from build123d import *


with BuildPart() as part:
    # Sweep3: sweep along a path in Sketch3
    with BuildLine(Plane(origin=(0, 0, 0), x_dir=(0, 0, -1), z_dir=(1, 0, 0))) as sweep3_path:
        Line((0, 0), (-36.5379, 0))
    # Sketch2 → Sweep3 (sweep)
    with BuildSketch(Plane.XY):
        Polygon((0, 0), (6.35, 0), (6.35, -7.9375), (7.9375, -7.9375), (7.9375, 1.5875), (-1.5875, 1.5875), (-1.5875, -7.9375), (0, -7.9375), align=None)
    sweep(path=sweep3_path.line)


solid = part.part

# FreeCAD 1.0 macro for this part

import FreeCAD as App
import Part
import Sketcher
from FreeCAD import Vector
Q = App.Units.Quantity

doc = App.newDocument("Part")
body = doc.addObject("PartDesign::Body", "Body")

# Sketch on XY plane
sketch1 = body.newObject("Sketcher::SketchObject", "Sketch")
sketch1.AttachmentSupport = (doc.getObject("XY_Plane"), [""])
sketch1.MapMode = "FlatFace"
sketch1.addGeometry(Part.LineSegment(Vector(0, 0, 0), Vector(6.3, 0, 0)), False)
sketch1.addGeometry(Part.LineSegment(Vector(6.3, 0, 0), Vector(6.3, -7.9, 0)), False)
sketch1.addGeometry(Part.LineSegment(Vector(6.3, -7.9, 0), Vector(7.9, -7.9, 0)), False)
sketch1.addGeometry(Part.LineSegment(Vector(7.9, -7.9, 0), Vector(7.9, 1.6, 0)), False)
sketch1.addGeometry(Part.LineSegment(Vector(7.9, 1.6, 0), Vector(-1.6, 1.6, 0)), False)
sketch1.addGeometry(Part.LineSegment(Vector(-1.6, 1.6, 0), Vector(-1.6, -7.9, 0)), False)
sketch1.addGeometry(Part.LineSegment(Vector(-1.6, -7.9, 0), Vector(0, -7.9, 0)), False)
sketch1.addGeometry(Part.LineSegment(Vector(0, -7.9, 0), Vector(0, 0, 0)), False)
sketch1.addConstraint(Sketcher.Constraint("Coincident", 0, 2, 1, 1))
sketch1.addConstraint(Sketcher.Constraint("Coincident", 1, 2, 2, 1))
sketch1.addConstraint(Sketcher.Constraint("Coincident", 2, 2, 3, 1))
sketch1.addConstraint(Sketcher.Constraint("Coincident", 3, 2, 4, 1))
sketch1.addConstraint(Sketcher.Constraint("Coincident", 4, 2, 5, 1))
sketch1.addConstraint(Sketcher.Constraint("Coincident", 5, 2, 6, 1))
sketch1.addConstraint(Sketcher.Constraint("Coincident", 6, 2, 7, 1))
sketch1.addConstraint(Sketcher.Constraint("Coincident", 7, 2, 0, 1))
sketch1.addConstraint(Sketcher.Constraint("Horizontal", 0))
sketch1.addConstraint(Sketcher.Constraint("Vertical", 1))
sketch1.addConstraint(Sketcher.Constraint("Horizontal", 2))
sketch1.addConstraint(Sketcher.Constraint("Vertical", 3))
sketch1.addConstraint(Sketcher.Constraint("Horizontal", 4))
sketch1.addConstraint(Sketcher.Constraint("Vertical", 5))
sketch1.addConstraint(Sketcher.Constraint("Horizontal", 6))
sketch1.addConstraint(Sketcher.Constraint("Vertical", 7))
sketch1.addConstraint(Sketcher.Constraint("Coincident", 7, 2, -1, 1))
sketch1.addConstraint(Sketcher.Constraint("Horizontal", 2, 2, 5, 2))
sketch1.addConstraint(Sketcher.Constraint("Equal", 2, 6))
sketch1.addConstraint(Sketcher.Constraint("Equal", 4, 3))
sketch1.addConstraint(Sketcher.Constraint("DistanceX", 0, 1, 0, 2, Q("0.25 in")))
sketch1.addConstraint(Sketcher.Constraint("DistanceX", 2, 1, 2, 2, Q("0.0625 in")))
sketch1.addConstraint(Sketcher.Constraint("DistanceY", 1, 2, 1, 1, Q("0.3125 in")))

# Sketch on XZ plane
sketch2 = body.newObject("Sketcher::SketchObject", "Sketch001")
sketch2.AttachmentSupport = (doc.getObject("XZ_Plane"), [""])
sketch2.MapMode = "FlatFace"
sketch2.addGeometry(Part.LineSegment(Vector(0, 0, 0), Vector(0, 37, 0)), False)
sketch2.addConstraint(Sketcher.Constraint("Vertical", 0))
sketch2.addConstraint(Sketcher.Constraint("Coincident", 0, 1, -1, 1))
sketch2.addConstraint(Sketcher.Constraint("DistanceY", 0, 1, 0, 2, Q("1.4385 in")))
doc.recompute()

additivepipe = body.newObject("PartDesign::AdditivePipe", "AdditivePipe")
additivepipe.Profile = sketch1
additivepipe.Spine = (sketch2, ["Edge1"])

doc.recompute()
